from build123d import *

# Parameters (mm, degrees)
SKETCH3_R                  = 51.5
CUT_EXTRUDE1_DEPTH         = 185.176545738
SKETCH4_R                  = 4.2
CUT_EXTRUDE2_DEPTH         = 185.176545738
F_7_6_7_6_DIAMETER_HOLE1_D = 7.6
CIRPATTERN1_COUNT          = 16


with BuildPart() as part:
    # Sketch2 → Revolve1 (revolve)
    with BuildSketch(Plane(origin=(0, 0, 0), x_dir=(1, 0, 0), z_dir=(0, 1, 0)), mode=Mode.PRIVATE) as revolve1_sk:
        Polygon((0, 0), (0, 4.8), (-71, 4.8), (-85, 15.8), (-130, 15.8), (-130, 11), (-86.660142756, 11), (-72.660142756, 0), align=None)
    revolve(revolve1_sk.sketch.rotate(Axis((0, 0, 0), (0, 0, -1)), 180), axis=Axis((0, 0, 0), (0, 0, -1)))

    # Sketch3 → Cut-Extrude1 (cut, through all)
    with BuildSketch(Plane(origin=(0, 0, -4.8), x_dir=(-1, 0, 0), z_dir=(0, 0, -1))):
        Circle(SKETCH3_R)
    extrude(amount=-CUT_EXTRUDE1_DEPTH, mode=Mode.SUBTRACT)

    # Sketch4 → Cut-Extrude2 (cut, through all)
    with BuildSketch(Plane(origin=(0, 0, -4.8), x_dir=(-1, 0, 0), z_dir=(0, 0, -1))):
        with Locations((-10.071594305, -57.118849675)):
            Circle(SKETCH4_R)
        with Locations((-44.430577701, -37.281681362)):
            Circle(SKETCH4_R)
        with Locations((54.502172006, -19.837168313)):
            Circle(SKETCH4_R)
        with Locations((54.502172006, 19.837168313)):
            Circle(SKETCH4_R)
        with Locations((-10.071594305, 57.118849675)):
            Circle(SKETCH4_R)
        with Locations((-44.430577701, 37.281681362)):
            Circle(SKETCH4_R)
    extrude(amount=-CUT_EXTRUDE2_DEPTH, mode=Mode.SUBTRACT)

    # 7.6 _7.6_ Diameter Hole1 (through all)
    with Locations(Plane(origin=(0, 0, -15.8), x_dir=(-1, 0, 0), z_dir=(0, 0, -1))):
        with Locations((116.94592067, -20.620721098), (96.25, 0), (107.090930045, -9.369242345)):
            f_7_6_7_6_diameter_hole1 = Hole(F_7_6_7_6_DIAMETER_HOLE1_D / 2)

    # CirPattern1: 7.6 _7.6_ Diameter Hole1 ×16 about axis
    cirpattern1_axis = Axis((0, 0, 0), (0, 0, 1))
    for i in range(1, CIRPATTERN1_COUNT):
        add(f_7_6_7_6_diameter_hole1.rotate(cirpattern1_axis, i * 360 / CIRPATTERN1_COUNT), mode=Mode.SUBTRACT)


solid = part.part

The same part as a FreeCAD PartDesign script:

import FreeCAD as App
import Part
import Sketcher
from FreeCAD import Vector
Q = App.Units.Quantity


def add_polygon(sketch, points):
    """Adds a closed chain of lines whose ends are joined by coincident constraints."""
    first, n = sketch.GeometryCount, len(points)
    for a, b in zip(points, points[1:] + points[:1]):
        sketch.addGeometry(Part.LineSegment(App.Vector(*a, 0), App.Vector(*b, 0)), False)
    for i in range(n):
        sketch.addConstraint(Sketcher.Constraint("Coincident", first + i, 2, first + (i + 1) % n, 1))

doc = App.newDocument("Part")
body = doc.addObject("PartDesign::Body", "Body")

# Sketch on XZ plane
sketch1 = body.newObject("Sketcher::SketchObject", "Sketch")
sketch1.AttachmentSupport = (doc.getObject("XZ_Plane"), [""])
sketch1.MapMode = "FlatFace"
add_polygon(sketch1, [(0, 0), (0, -4.8), (-71, -4.8), (-85, -15.8), (-130, -15.8), (-130, -11), (-86.7, -11), (-72.7, 0)])  # lines 0-7
sketch1.addConstraint([
    Sketcher.Constraint("Vertical", 0),
    Sketcher.Constraint("Horizontal", 1),
    Sketcher.Constraint("Horizontal", 3),
    Sketcher.Constraint("Vertical", 4),
    Sketcher.Constraint("Horizontal", 5),
    Sketcher.Constraint("Horizontal", 7),
    Sketcher.Constraint("Coincident", 7, 2, -1, 1),
    Sketcher.Constraint("Parallel", 2, 6),
    Sketcher.Constraint("Equal", 0, 4),
    Sketcher.Constraint("DistanceX", 1, 2, 1, 1, Q("71 mm")),
    Sketcher.Constraint("DistanceX", 3, 2, 3, 1, Q("45 mm")),
    Sketcher.Constraint("DistanceY", 0, 2, 0, 1, Q("4.8 mm")),
    Sketcher.Constraint("DistanceX", 2, 2, -1, 1, Q("85 mm")),
    Sketcher.Constraint("DistanceY", 4, 2, -1, 1, Q("11 mm")),
    Sketcher.Constraint("DistanceX", 5, 1, 5, 2, Q("43.339857 mm")),
])
revolution = body.newObject("PartDesign::Revolution", "Revolution")
revolution.Profile = sketch1
revolution.ReferenceAxis = (sketch1, ["V_Axis"])
revolution.Angle = 360

# Sketch on XY plane
sketch2 = body.newObject("Sketcher::SketchObject", "Sketch001")
sketch2.AttachmentSupport = (doc.getObject("XY_Plane"), [""])
sketch2.MapMode = "FlatFace"
sketch2.AttachmentOffset = App.Placement(Vector(0, 0, -4.8), App.Rotation())
sketch2.addGeometry(Part.Circle(Vector(0, 0, 0), Vector(0, 0, 1), 52), False)
sketch2.addConstraint([
    Sketcher.Constraint("Coincident", 0, 3, -1, 1),
    Sketcher.Constraint("Diameter", 0, Q("103 mm")),
])
pocket1 = body.newObject("PartDesign::Pocket", "Pocket")
pocket1.Profile = sketch2
pocket1.Type = "ThroughAll"
pocket1.Reversed = True

# Sketch on XY plane
sketch3 = body.newObject("Sketcher::SketchObject", "Sketch002")
sketch3.AttachmentSupport = (doc.getObject("XY_Plane"), [""])
sketch3.MapMode = "FlatFace"
sketch3.AttachmentOffset = App.Placement(Vector(0, 0, -4.8), App.Rotation())
sketch3.addGeometry([
    Part.Circle(Vector(10.1, -57.1, 0), Vector(0, 0, 1), 4.2),  # 0
    Part.Circle(Vector(44.4, -37.3, 0), Vector(0, 0, 1), 4.2),  # 1
    Part.Circle(Vector(-54.5, -19.8, 0), Vector(0, 0, 1), 4.2),  # 2
    Part.Circle(Vector(-54.5, 19.8, 0), Vector(0, 0, 1), 4.2),  # 3
    Part.Circle(Vector(10.1, 57.1, 0), Vector(0, 0, 1), 4.2),  # 4
    Part.Circle(Vector(44.4, 37.3, 0), Vector(0, 0, 1), 4.2),  # 5
], False)
sketch3.addConstraint([
    Sketcher.Constraint("Equal", 0, 1),
    Sketcher.Constraint("Equal", 1, 2),
    Sketcher.Constraint("Equal", 2, 3),
    Sketcher.Constraint("Equal", 3, 4),
    Sketcher.Constraint("Equal", 4, 5),
    Sketcher.Constraint("Symmetric", 2, 3, 3, 3, -1),
    Sketcher.Constraint("Symmetric", 0, 3, 4, 3, -1),
    Sketcher.Constraint("Symmetric", 1, 3, 5, 3, -1),
    Sketcher.Constraint("Diameter", 0, Q("8.4 mm")),
    Sketcher.Constraint("DistanceY", 0, 3, 4, 3, Q("114.237699 mm")),
    Sketcher.Constraint("DistanceY", 1, 3, -1, 1, Q("37.281681 mm")),
    Sketcher.Constraint("DistanceY", 2, 3, -1, 1, Q("19.837168 mm")),
    Sketcher.Constraint("DistanceX", 2, 3, 1, 3, Q("98.93275 mm")),
    Sketcher.Constraint("DistanceX", -1, 1, 0, 3, Q("10.071594 mm")),
    Sketcher.Constraint("DistanceX", -1, 1, 1, 3, Q("44.430578 mm")),
])
pocket2 = body.newObject("PartDesign::Pocket", "Pocket001")
pocket2.Profile = sketch3
pocket2.Type = "ThroughAll"
pocket2.Reversed = True

# Sketch on XY plane
sketch4 = body.newObject("Sketcher::SketchObject", "Sketch003")
sketch4.AttachmentSupport = (doc.getObject("XY_Plane"), [""])
sketch4.MapMode = "FlatFace"
sketch4.AttachmentOffset = App.Placement(Vector(0, 0, -15.8), App.Rotation())
sketch4.addGeometry([
    Part.Circle(Vector(-116.9, -20.6, 0), Vector(0, 0, 1), 3.8),
    Part.Circle(Vector(-96.2, 0, 0), Vector(0, 0, 1), 3.8),
    Part.Circle(Vector(-107.1, -9.4, 0), Vector(0, 0, 1), 3.8),
], False)
sketch4.addConstraint([
    Sketcher.Constraint("Equal", 0, 1),
    Sketcher.Constraint("Equal", 1, 2),
    Sketcher.Constraint("PointOnObject", 1, 3, -1),
    Sketcher.Constraint("Diameter", 0, Q("7.6 mm")),
    Sketcher.Constraint("DistanceX", 1, 3, -1, 1, Q("96.25 mm")),
    Sketcher.Constraint("DistanceX", 0, 3, -1, 1, Q("116.945921 mm")),
    Sketcher.Constraint("DistanceY", 0, 3, -1, 1, Q("20.620721 mm")),
    Sketcher.Constraint("DistanceX", 2, 3, -1, 1, Q("107.09093 mm")),
    Sketcher.Constraint("DistanceY", 0, 3, 2, 3, Q("11.251479 mm")),
])
doc.recompute()
hole = body.newObject("PartDesign::Hole", "Hole")
hole.Profile = sketch4
hole.ThreadType = "None"
hole.Diameter = 7.6
hole.DepthType = "ThroughAll"
hole.Reversed = True
doc.recompute()

polarpattern = body.newObject("PartDesign::PolarPattern", "PolarPattern")
polarpattern.Originals = [hole]
polarpattern.Axis = (doc.getObject("Z_Axis"), [""])
polarpattern.Angle = 360
polarpattern.Occurrences = 16
body.Tip = polarpattern

doc.recompute()
